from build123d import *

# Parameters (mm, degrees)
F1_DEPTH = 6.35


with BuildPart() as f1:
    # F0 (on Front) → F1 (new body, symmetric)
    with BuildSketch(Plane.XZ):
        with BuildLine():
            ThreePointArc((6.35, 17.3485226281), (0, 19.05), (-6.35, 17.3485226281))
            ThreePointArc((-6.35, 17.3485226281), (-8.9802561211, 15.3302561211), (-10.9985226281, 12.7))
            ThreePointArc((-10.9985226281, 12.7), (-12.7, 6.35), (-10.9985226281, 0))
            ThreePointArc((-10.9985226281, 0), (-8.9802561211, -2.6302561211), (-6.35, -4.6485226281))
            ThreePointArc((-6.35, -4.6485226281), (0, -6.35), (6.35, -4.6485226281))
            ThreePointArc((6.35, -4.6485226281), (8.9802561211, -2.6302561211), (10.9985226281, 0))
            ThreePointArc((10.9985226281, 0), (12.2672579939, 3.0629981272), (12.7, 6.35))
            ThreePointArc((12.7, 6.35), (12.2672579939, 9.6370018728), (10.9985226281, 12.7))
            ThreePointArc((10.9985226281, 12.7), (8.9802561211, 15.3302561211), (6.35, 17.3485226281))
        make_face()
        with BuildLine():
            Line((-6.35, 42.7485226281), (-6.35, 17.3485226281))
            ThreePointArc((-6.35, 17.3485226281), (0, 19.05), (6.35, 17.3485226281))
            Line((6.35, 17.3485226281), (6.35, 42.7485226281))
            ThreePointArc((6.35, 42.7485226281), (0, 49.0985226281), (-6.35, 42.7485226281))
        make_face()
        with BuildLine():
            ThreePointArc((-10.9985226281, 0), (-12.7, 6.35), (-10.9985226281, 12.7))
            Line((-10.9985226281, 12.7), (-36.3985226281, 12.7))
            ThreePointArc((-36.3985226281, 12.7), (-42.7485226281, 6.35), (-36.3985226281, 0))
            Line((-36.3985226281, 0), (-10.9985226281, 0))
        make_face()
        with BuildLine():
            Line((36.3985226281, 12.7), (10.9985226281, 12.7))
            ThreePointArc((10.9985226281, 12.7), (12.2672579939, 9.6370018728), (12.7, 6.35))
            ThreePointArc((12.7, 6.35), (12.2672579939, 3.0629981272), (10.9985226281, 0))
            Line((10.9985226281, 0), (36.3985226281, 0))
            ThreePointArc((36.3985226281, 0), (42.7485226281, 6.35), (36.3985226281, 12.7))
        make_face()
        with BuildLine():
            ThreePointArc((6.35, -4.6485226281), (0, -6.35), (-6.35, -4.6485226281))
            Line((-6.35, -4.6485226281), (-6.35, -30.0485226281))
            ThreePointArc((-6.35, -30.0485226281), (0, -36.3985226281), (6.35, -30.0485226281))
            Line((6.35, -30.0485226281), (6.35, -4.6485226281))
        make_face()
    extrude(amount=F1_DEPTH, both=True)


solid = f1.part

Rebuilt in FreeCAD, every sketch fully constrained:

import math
import FreeCAD as App
import Part
import Sketcher

V = App.Vector
Q = App.Units.Quantity

doc = App.newDocument("Part")
body = doc.addObject("PartDesign::Body", "Body")

sketch1 = body.newObject("Sketcher::SketchObject", "Sketch")
sketch1.AttachmentSupport = (doc.getObject("XZ_Plane"), [""])
sketch1.MapMode = "FlatFace"
sketch1.addGeometry([
    Part.ArcOfCircle(Part.Circle(V(0, 6, 0), V(0, 0, 1), 13), math.radians(120), math.radians(150)),
    Part.LineSegment(V(-11, 13, 0), V(-36, 13, 0)),
    Part.ArcOfCircle(Part.Circle(V(-36, 6, 0), V(0, 0, 1), 6), math.radians(90), math.radians(270)),
    Part.LineSegment(V(-36, 0, 0), V(-11, 0, 0)),
    Part.ArcOfCircle(Part.Circle(V(0, 6, 0), V(0, 0, 1), 13), math.radians(-150), math.radians(-120)),
    Part.LineSegment(V(-6, -5, 0), V(-6, -30, 0)),
    Part.ArcOfCircle(Part.Circle(V(0, -30, 0), V(0, 0, 1), 6), math.radians(180), math.radians(360)),
    Part.LineSegment(V(6, -30, 0), V(6, -5, 0)),
    Part.ArcOfCircle(Part.Circle(V(0, 6, 0), V(0, 0, 1), 13), math.radians(-60), math.radians(-30)),
    Part.LineSegment(V(11, 0, 0), V(36, 0, 0)),
    Part.ArcOfCircle(Part.Circle(V(36, 6, 0), V(0, 0, 1), 6), math.radians(-90), math.radians(90)),
    Part.LineSegment(V(36, 13, 0), V(11, 13, 0)),
    Part.ArcOfCircle(Part.Circle(V(0, 6, 0), V(0, 0, 1), 13), math.radians(30), math.radians(60)),
    Part.LineSegment(V(6, 17, 0), V(6, 43, 0)),
    Part.ArcOfCircle(Part.Circle(V(0, 43, 0), V(0, 0, 1), 6), math.radians(0), math.radians(180)),
    Part.LineSegment(V(-6, 43, 0), V(-6, 17, 0)),
], False)
sketch1.addConstraint([
    Sketcher.Constraint("Coincident", 0, 2, 1, 1),
    Sketcher.Constraint("Tangent", 1, 2, 2, 1),
    Sketcher.Constraint("Tangent", 2, 2, 3, 1),
    Sketcher.Constraint("Coincident", 3, 2, 4, 1),
    Sketcher.Constraint("Coincident", 4, 2, 5, 1),
    Sketcher.Constraint("Tangent", 5, 2, 6, 1),
    Sketcher.Constraint("Tangent", 6, 2, 7, 1),
    Sketcher.Constraint("Coincident", 7, 2, 8, 1),
    Sketcher.Constraint("Coincident", 8, 2, 9, 1),
    Sketcher.Constraint("Tangent", 9, 2, 10, 1),
    Sketcher.Constraint("Tangent", 10, 2, 11, 1),
    Sketcher.Constraint("Coincident", 11, 2, 12, 1),
    Sketcher.Constraint("Coincident", 12, 2, 13, 1),
    Sketcher.Constraint("Tangent", 13, 2, 14, 1),
    Sketcher.Constraint("Tangent", 14, 2, 15, 1),
    Sketcher.Constraint("Coincident", 15, 2, 0, 1),
    Sketcher.Constraint("Horizontal", 1),
    Sketcher.Constraint("Horizontal", 3),
    Sketcher.Constraint("Vertical", 5),
    Sketcher.Constraint("Vertical", 7),
    Sketcher.Constraint("Horizontal", 9),
    Sketcher.Constraint("Horizontal", 11),
    Sketcher.Constraint("Vertical", 13),
    Sketcher.Constraint("Vertical", 15),
    Sketcher.Constraint("Coincident", 4, 3, 0, 3),
    Sketcher.Constraint("Coincident", 8, 3, 0, 3),
    Sketcher.Constraint("Coincident", 12, 3, 0, 3),
    Sketcher.Constraint("Equal", 0, 4),
    Sketcher.Constraint("Equal", 2, 6),
    Sketcher.Constraint("Equal", 4, 8),
    Sketcher.Constraint("Equal", 6, 10),
    Sketcher.Constraint("Equal", 8, 12),
    Sketcher.Constraint("Equal", 10, 14),
    Sketcher.Constraint("Symmetric", 3, 2, 8, 2, -1, 1),
    Sketcher.Constraint("Symmetric", 2, 3, 10, 3, -2),
    Sketcher.Constraint("PointOnObject", 6, 3, -2),
    Sketcher.Constraint("PointOnObject", 14, 3, -2),
    Sketcher.Constraint("Horizontal", 0, 3, 2, 3),
    Sketcher.Constraint("Equal", 11, 5),
    Sketcher.Constraint("Equal", 7, 13),
    Sketcher.Constraint("Radius", 0, Q("0.5 in")),
    Sketcher.Constraint("DistanceX", 1, 2, 1, 1, Q("1 in")),
    Sketcher.Constraint("Radius", 2, Q("0.25 in")),
])
pad1 = body.newObject("PartDesign::Pad", "Pad")
pad1.Profile = sketch1
pad1.Length = Q("0.5 in")
pad1.Midplane = True

doc.recompute()
